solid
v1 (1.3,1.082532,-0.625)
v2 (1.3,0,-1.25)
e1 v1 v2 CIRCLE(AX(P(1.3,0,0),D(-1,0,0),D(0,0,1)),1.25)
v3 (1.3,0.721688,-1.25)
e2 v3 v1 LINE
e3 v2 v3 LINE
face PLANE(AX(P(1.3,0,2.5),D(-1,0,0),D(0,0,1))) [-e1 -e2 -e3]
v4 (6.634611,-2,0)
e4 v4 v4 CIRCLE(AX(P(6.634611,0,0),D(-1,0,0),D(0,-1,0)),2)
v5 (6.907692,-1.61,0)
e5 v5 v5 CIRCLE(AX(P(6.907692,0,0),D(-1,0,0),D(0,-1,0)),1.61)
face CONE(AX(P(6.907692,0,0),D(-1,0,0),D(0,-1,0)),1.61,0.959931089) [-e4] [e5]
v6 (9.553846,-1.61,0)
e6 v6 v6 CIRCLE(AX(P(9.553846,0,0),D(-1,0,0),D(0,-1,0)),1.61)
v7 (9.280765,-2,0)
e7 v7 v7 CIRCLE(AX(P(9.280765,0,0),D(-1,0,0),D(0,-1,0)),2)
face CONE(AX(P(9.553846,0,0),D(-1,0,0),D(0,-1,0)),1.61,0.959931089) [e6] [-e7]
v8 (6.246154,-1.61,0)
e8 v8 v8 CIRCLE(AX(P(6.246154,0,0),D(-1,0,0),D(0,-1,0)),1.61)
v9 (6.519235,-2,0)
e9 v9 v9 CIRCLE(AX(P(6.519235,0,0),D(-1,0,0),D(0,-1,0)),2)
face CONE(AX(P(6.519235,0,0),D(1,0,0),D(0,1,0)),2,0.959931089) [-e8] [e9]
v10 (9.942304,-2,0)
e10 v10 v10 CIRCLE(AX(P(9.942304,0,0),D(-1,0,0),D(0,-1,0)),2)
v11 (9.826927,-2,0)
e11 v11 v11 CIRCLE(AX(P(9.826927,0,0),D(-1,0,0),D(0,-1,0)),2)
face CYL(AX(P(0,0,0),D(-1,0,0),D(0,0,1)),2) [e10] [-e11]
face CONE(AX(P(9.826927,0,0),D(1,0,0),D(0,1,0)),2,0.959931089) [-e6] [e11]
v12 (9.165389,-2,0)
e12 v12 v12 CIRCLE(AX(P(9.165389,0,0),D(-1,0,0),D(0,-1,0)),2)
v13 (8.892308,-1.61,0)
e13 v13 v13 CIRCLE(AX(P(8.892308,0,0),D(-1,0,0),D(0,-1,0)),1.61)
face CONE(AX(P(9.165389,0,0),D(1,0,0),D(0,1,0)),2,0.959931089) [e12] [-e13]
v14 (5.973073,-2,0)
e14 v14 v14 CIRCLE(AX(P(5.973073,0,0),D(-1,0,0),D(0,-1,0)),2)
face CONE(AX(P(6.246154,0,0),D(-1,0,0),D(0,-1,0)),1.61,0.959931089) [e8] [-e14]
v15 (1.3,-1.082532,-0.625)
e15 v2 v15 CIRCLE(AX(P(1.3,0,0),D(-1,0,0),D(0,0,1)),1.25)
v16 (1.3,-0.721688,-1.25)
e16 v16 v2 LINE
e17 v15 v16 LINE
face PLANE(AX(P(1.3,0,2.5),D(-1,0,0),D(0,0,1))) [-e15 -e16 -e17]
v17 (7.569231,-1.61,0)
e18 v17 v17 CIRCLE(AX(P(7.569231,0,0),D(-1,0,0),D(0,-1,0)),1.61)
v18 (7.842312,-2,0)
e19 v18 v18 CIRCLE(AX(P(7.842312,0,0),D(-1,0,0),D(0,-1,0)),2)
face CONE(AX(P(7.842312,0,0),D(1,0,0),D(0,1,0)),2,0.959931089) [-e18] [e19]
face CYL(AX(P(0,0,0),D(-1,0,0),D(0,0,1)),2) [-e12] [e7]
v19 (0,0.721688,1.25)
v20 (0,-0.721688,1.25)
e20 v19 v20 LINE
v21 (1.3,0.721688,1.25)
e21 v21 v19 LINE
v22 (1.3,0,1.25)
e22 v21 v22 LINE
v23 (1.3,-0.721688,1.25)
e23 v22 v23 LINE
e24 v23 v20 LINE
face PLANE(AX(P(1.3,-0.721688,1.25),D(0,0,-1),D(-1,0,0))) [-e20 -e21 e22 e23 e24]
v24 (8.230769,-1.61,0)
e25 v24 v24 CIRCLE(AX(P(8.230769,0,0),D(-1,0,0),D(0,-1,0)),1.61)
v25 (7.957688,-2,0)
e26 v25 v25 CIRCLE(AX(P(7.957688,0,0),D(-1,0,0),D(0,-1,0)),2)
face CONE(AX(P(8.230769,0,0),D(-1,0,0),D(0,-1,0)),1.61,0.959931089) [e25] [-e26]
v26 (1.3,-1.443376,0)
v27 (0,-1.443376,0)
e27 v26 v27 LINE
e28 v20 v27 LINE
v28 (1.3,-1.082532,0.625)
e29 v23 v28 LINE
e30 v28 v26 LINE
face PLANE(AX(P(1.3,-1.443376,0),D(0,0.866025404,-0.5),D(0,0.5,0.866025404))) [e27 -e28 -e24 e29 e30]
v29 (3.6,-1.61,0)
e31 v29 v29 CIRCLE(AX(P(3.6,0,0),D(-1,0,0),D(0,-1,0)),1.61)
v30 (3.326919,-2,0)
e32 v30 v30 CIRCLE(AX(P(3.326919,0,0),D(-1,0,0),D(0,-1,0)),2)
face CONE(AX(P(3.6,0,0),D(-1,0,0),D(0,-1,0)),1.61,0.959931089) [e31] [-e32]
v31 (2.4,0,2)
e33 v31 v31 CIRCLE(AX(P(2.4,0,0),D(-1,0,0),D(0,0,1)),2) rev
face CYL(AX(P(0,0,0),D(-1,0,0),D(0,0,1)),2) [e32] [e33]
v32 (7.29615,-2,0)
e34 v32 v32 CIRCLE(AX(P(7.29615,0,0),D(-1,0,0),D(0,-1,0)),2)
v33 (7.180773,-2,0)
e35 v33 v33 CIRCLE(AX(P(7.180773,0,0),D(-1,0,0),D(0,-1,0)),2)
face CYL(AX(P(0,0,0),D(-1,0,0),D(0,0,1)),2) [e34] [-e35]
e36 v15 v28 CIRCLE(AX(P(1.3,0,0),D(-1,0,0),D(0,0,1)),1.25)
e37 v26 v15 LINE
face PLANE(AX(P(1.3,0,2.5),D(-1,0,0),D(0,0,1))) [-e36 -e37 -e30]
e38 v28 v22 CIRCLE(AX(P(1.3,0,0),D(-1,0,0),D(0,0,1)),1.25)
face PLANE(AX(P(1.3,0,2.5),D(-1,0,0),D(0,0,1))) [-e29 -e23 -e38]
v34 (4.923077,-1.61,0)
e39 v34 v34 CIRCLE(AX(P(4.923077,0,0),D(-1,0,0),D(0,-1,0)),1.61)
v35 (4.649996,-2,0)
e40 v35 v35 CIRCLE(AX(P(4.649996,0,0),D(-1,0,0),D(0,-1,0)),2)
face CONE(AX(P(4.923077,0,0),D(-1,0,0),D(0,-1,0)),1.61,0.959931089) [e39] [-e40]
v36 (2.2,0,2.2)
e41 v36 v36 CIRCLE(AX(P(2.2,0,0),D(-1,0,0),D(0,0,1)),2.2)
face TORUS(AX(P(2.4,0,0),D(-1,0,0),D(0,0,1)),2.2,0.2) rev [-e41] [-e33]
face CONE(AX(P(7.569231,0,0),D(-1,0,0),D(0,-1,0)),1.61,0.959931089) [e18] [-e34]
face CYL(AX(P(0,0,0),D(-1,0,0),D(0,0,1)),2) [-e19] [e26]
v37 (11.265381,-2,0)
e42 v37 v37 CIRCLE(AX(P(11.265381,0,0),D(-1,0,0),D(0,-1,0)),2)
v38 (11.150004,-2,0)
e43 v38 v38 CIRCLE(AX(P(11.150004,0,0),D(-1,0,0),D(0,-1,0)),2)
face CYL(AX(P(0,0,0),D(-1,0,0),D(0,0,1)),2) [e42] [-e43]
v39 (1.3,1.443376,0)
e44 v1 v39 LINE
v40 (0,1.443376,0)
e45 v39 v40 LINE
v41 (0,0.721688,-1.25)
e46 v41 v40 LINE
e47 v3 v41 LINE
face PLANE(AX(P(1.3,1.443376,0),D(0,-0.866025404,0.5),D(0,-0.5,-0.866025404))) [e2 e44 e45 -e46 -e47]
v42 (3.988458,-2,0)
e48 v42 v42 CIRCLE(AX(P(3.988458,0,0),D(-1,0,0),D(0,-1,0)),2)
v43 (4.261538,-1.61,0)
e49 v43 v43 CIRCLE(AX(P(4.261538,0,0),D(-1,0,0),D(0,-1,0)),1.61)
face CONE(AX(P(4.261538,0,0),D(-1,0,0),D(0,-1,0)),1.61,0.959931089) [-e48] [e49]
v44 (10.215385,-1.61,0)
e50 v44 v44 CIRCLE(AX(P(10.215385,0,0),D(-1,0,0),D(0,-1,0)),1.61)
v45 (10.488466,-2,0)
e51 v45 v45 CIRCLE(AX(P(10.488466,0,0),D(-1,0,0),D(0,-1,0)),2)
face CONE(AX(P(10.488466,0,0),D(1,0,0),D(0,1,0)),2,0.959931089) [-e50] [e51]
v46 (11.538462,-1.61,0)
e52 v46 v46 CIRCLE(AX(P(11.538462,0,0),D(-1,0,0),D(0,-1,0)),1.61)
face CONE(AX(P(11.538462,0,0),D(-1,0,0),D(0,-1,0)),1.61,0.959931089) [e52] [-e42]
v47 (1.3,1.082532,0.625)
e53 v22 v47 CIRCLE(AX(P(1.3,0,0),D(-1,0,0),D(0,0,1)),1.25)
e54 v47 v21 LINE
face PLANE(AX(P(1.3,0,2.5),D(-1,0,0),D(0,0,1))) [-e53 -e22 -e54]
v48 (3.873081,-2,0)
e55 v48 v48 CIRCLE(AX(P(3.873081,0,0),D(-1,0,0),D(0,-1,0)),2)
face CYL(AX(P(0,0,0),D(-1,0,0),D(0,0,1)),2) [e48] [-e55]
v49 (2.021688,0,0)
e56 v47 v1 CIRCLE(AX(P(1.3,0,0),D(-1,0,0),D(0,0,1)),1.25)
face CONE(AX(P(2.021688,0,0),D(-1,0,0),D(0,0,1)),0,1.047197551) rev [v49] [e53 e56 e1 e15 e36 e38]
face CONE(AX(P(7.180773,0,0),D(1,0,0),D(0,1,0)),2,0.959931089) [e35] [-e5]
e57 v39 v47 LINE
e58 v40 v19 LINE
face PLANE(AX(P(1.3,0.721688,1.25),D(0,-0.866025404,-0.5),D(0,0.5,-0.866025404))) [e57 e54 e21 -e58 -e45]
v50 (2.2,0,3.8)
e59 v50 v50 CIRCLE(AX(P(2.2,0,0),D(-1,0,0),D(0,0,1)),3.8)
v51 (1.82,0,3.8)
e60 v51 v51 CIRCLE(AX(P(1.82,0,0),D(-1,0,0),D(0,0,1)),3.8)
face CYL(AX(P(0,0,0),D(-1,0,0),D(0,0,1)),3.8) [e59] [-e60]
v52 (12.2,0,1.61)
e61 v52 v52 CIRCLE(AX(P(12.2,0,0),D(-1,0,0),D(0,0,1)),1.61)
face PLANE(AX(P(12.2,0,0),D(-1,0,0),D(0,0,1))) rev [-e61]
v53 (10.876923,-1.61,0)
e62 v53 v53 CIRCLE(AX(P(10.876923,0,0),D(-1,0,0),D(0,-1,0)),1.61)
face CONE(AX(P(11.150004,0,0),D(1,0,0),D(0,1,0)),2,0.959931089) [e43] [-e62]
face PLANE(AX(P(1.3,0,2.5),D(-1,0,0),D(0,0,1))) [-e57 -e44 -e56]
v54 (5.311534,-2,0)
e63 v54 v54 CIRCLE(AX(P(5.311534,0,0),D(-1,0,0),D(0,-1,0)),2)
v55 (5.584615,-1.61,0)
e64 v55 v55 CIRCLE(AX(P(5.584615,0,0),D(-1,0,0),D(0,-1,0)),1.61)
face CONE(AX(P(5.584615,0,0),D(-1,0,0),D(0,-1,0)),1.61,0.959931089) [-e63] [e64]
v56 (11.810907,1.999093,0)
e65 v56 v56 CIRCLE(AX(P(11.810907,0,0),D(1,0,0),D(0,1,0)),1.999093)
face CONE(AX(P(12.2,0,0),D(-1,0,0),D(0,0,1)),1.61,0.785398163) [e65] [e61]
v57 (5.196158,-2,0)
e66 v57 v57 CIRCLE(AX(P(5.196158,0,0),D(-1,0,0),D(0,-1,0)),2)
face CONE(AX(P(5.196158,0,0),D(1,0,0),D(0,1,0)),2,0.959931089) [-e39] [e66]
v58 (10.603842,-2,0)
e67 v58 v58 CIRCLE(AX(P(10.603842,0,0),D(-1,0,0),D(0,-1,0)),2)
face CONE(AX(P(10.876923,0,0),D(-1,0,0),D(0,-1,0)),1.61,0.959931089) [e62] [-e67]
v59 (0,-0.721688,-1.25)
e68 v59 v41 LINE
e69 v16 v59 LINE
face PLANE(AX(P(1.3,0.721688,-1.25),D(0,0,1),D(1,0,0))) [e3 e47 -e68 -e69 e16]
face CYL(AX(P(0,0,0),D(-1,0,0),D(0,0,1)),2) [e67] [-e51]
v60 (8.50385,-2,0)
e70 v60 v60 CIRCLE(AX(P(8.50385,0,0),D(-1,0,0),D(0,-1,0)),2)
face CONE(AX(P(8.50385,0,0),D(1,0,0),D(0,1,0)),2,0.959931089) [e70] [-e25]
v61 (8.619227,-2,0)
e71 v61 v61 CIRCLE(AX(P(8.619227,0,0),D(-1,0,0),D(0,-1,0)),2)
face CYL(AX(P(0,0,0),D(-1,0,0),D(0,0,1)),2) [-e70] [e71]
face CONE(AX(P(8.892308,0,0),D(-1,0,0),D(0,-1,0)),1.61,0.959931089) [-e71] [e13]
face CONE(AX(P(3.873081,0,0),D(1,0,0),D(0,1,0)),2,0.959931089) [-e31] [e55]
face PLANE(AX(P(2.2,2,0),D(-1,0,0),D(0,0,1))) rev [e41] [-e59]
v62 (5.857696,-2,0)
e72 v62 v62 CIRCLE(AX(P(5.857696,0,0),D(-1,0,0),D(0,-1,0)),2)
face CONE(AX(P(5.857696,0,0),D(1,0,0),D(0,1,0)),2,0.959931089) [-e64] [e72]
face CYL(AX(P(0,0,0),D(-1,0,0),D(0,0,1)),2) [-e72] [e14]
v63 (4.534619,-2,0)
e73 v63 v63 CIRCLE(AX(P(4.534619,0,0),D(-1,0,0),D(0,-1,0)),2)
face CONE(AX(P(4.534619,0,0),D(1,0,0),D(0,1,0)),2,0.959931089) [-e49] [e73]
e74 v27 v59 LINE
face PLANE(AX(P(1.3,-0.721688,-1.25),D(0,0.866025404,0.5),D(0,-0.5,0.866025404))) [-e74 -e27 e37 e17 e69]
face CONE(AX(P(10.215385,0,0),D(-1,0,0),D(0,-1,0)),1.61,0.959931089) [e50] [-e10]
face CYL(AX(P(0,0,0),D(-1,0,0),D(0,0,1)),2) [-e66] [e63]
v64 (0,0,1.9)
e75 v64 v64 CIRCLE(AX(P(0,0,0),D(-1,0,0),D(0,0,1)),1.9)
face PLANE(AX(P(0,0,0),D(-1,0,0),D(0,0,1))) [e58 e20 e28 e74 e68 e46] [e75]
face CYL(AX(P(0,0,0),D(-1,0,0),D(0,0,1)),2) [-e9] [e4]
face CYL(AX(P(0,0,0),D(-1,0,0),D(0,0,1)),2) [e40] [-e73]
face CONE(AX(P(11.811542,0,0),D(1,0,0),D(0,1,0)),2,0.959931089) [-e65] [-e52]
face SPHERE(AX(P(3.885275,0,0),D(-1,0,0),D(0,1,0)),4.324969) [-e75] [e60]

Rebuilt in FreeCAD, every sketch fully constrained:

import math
import FreeCAD as App
import Part
import Sketcher

V = App.Vector
Q = App.Units.Quantity


def edges_at(feature, points):
    """Names of the edges that pass closest to the given points."""
    edges = feature.Shape.Edges
    near = lambda p: min(range(len(edges)), key=lambda i: edges[i].distToShape(Part.Vertex(*p))[0])
    return sorted({f"Edge{near(p) + 1}" for p in points})


def add_polygon(sketch, points):
    """Adds a closed chain of lines whose ends are joined by coincident constraints."""
    first, n = sketch.GeometryCount, len(points)
    for a, b in zip(points, points[1:] + points[:1]):
        sketch.addGeometry(Part.LineSegment(App.Vector(*a, 0), App.Vector(*b, 0)), False)
    for i in range(n):
        sketch.addConstraint(Sketcher.Constraint("Coincident", first + i, 2, first + (i + 1) % n, 1))

doc = App.newDocument("Part")
body = doc.addObject("PartDesign::Body", "Body")

sketch1 = body.newObject("Sketcher::SketchObject", "Sketch")
sketch1.AttachmentSupport = (doc.getObject("XY_Plane"), [""])
sketch1.MapMode = "FlatFace"
sketch1.addGeometry(Part.LineSegment(V(12.2, 0, 0), V(12.2, 1.61, 0)), False)
sketch1.addGeometry(Part.LineSegment(V(12.2, 1.61, 0), V(11.81, 2, 0)), False)
sketch1.addGeometry(Part.LineSegment(V(11.81, 2, 0), V(2.2, 2, 0)), False)
sketch1.addGeometry(Part.LineSegment(V(2.2, 2, 0), V(2.2, 3.8, 0)), False)
sketch1.addGeometry(Part.LineSegment(V(2.2, 3.8, 0), V(1.82, 3.8, 0)), False)
sketch1.addGeometry(Part.ArcOfCircle(Part.Circle(V(3.89, 0, 0), V(0, 0, 1), 4.32), math.radians(119), math.radians(154)), False)
sketch1.addGeometry(Part.LineSegment(V(0, 1.9, 0), V(0, 0, 0)), False)
sketch1.addGeometry(Part.LineSegment(V(0, 0, 0), V(12.2, 0, 0)), False)
sketch1.addConstraint(Sketcher.Constraint("Coincident", 0, 2, 1, 1))
sketch1.addConstraint(Sketcher.Constraint("Coincident", 1, 2, 2, 1))
sketch1.addConstraint(Sketcher.Constraint("Coincident", 2, 2, 3, 1))
sketch1.addConstraint(Sketcher.Constraint("Coincident", 3, 2, 4, 1))
sketch1.addConstraint(Sketcher.Constraint("Coincident", 4, 2, 5, 1))
sketch1.addConstraint(Sketcher.Constraint("Coincident", 5, 2, 6, 1))
sketch1.addConstraint(Sketcher.Constraint("Coincident", 6, 2, 7, 1))
sketch1.addConstraint(Sketcher.Constraint("Coincident", 7, 2, 0, 1))
sketch1.addConstraint(Sketcher.Constraint("Vertical", 0))
sketch1.addConstraint(Sketcher.Constraint("Horizontal", 2))
sketch1.addConstraint(Sketcher.Constraint("Vertical", 3))
sketch1.addConstraint(Sketcher.Constraint("Horizontal", 4))
sketch1.addConstraint(Sketcher.Constraint("Vertical", 6))
sketch1.addConstraint(Sketcher.Constraint("Horizontal", 7))
sketch1.addConstraint(Sketcher.Constraint("Coincident", 6, 2, -1, 1))
sketch1.addConstraint(Sketcher.Constraint("PointOnObject", 5, 3, -1))
sketch1.addConstraint(Sketcher.Constraint("Angle", 1, Q("135 deg")))
sketch1.addConstraint(Sketcher.Constraint("DistanceX", 7, 1, 7, 2, 12.2))
sketch1.addConstraint(Sketcher.Constraint("DistanceY", 3, 1, 3, 2, 1.8))
sketch1.addConstraint(Sketcher.Constraint("DistanceY", 6, 2, 6, 1, 1.9))
sketch1.addConstraint(Sketcher.Constraint("DistanceY", -1, 1, 1, 2, 2.0))
sketch1.addConstraint(Sketcher.Constraint("DistanceX", 2, 2, 0, 2, 10.0))
sketch1.addConstraint(Sketcher.Constraint("DistanceX", 2, 2, 2, 1, 9.61))
sketch1.addConstraint(Sketcher.Constraint("DistanceX", 4, 2, 4, 1, 0.38))
revolution = body.newObject("PartDesign::Revolution", "Revolution")
revolution.Profile = sketch1
revolution.ReferenceAxis = (sketch1, ["H_Axis"])
revolution.Angle = 360
doc.recompute()

fillet = body.newObject("PartDesign::Fillet", "Fillet")
fillet.Base = (revolution, edges_at(revolution, [(2.2, -2, 0)]))
fillet.Radius = 0.2

sketch2 = body.newObject("Sketcher::SketchObject", "Sketch001")
sketch2.AttachmentSupport = (doc.getObject("XY_Plane"), [""])
sketch2.MapMode = "FlatFace"
add_polygon(sketch2, [(1.3, 1.2), (0, 1.2), (0, 0), (2, 0)])
sketch2.addConstraint(Sketcher.Constraint("Horizontal", 0))
sketch2.addConstraint(Sketcher.Constraint("Vertical", 1))
sketch2.addConstraint(Sketcher.Constraint("Horizontal", 2))
sketch2.addConstraint(Sketcher.Constraint("Coincident", 1, 2, -1, 1))
sketch2.addConstraint(Sketcher.Constraint("Angle", 3, Q("120 deg")))
sketch2.addConstraint(Sketcher.Constraint("DistanceX", 0, 2, 0, 1, 1.3))
sketch2.addConstraint(Sketcher.Constraint("DistanceY", 1, 2, 1, 1, 1.25))
groove = body.newObject("PartDesign::Groove", "Groove")
groove.Profile = sketch2
groove.ReferenceAxis = (sketch2, ["H_Axis"])
groove.Angle = 360

sketch3 = body.newObject("Sketcher::SketchObject", "Sketch002")
sketch3.AttachmentSupport = (doc.getObject("YZ_Plane"), [""])
sketch3.MapMode = "FlatFace"
add_polygon(sketch3, [(0.7, 1.2), (-0.7, 1.2), (-1.4, 0), (-0.7, -1.2), (0.7, -1.2), (1.4, 0)])
sketch3.addConstraint(Sketcher.Constraint("Horizontal", 0))
sketch3.addConstraint(Sketcher.Constraint("Horizontal", 3))
sketch3.addConstraint(Sketcher.Constraint("Symmetric", 0, 2, 3, 2, -1, 1))
sketch3.addConstraint(Sketcher.Constraint("Symmetric", 1, 2, 4, 2, -1, 1))
sketch3.addConstraint(Sketcher.Constraint("PointOnObject", 1, 2, -1))
sketch3.addConstraint(Sketcher.Constraint("Parallel", 2, 5))
sketch3.addConstraint(Sketcher.Constraint("Vertical", 0, 2, 2, 2))
sketch3.addConstraint(Sketcher.Constraint("Angle", 1, Q("-120 deg")))
sketch3.addConstraint(Sketcher.Constraint("DistanceY", 2, 2, 0, 2, 2.5))
sketch3.addConstraint(Sketcher.Constraint("DistanceX", 0, 2, 0, 1, 1.443376))
pocket1 = body.newObject("PartDesign::Pocket", "Pocket")
pocket1.Profile = sketch3
pocket1.Length = 1.3
pocket1.Reversed = True

sketch4 = body.newObject("Sketcher::SketchObject", "Sketch003")
sketch4.AttachmentSupport = (doc.getObject("XY_Plane"), [""])
sketch4.MapMode = "FlatFace"
add_polygon(sketch4, [(3.6, -1.61), (3.33, -2), (3.33, -2.5), (3.87, -2.5), (3.87, -2)])
sketch4.addConstraint(Sketcher.Constraint("Vertical", 1))
sketch4.addConstraint(Sketcher.Constraint("Horizontal", 2))
sketch4.addConstraint(Sketcher.Constraint("Vertical", 3))
sketch4.addConstraint(Sketcher.Constraint("Horizontal", 0, 2, 3, 2))
sketch4.addConstraint(Sketcher.Constraint("Equal", 0, 4))
sketch4.addConstraint(Sketcher.Constraint("Angle", 0, Q("-125 deg")))
sketch4.addConstraint(Sketcher.Constraint("DistanceY", 1, 2, 1, 1, 0.5))
sketch4.addConstraint(Sketcher.Constraint("DistanceY", 0, 2, -1, 1, 2.0))
sketch4.addConstraint(Sketcher.Constraint("DistanceX", -1, 1, 4, 2, 3.6))
sketch4.addConstraint(Sketcher.Constraint("DistanceY", 4, 2, -1, 1, 1.61))
groove2 = body.newObject("PartDesign::Groove", "Groove001")
groove2.Profile = sketch4
groove2.ReferenceAxis = (sketch4, ["H_Axis"])
groove2.Angle = 360
doc.recompute()

linearpattern = body.newObject("PartDesign::LinearPattern", "LinearPattern")
linearpattern.Originals = [groove2]
linearpattern.Direction = (doc.getObject("X_Axis"), [""])
linearpattern.Mode = "offset"
linearpattern.Offset = 0.661538
linearpattern.Occurrences = 13
body.Tip = linearpattern

doc.recompute()
